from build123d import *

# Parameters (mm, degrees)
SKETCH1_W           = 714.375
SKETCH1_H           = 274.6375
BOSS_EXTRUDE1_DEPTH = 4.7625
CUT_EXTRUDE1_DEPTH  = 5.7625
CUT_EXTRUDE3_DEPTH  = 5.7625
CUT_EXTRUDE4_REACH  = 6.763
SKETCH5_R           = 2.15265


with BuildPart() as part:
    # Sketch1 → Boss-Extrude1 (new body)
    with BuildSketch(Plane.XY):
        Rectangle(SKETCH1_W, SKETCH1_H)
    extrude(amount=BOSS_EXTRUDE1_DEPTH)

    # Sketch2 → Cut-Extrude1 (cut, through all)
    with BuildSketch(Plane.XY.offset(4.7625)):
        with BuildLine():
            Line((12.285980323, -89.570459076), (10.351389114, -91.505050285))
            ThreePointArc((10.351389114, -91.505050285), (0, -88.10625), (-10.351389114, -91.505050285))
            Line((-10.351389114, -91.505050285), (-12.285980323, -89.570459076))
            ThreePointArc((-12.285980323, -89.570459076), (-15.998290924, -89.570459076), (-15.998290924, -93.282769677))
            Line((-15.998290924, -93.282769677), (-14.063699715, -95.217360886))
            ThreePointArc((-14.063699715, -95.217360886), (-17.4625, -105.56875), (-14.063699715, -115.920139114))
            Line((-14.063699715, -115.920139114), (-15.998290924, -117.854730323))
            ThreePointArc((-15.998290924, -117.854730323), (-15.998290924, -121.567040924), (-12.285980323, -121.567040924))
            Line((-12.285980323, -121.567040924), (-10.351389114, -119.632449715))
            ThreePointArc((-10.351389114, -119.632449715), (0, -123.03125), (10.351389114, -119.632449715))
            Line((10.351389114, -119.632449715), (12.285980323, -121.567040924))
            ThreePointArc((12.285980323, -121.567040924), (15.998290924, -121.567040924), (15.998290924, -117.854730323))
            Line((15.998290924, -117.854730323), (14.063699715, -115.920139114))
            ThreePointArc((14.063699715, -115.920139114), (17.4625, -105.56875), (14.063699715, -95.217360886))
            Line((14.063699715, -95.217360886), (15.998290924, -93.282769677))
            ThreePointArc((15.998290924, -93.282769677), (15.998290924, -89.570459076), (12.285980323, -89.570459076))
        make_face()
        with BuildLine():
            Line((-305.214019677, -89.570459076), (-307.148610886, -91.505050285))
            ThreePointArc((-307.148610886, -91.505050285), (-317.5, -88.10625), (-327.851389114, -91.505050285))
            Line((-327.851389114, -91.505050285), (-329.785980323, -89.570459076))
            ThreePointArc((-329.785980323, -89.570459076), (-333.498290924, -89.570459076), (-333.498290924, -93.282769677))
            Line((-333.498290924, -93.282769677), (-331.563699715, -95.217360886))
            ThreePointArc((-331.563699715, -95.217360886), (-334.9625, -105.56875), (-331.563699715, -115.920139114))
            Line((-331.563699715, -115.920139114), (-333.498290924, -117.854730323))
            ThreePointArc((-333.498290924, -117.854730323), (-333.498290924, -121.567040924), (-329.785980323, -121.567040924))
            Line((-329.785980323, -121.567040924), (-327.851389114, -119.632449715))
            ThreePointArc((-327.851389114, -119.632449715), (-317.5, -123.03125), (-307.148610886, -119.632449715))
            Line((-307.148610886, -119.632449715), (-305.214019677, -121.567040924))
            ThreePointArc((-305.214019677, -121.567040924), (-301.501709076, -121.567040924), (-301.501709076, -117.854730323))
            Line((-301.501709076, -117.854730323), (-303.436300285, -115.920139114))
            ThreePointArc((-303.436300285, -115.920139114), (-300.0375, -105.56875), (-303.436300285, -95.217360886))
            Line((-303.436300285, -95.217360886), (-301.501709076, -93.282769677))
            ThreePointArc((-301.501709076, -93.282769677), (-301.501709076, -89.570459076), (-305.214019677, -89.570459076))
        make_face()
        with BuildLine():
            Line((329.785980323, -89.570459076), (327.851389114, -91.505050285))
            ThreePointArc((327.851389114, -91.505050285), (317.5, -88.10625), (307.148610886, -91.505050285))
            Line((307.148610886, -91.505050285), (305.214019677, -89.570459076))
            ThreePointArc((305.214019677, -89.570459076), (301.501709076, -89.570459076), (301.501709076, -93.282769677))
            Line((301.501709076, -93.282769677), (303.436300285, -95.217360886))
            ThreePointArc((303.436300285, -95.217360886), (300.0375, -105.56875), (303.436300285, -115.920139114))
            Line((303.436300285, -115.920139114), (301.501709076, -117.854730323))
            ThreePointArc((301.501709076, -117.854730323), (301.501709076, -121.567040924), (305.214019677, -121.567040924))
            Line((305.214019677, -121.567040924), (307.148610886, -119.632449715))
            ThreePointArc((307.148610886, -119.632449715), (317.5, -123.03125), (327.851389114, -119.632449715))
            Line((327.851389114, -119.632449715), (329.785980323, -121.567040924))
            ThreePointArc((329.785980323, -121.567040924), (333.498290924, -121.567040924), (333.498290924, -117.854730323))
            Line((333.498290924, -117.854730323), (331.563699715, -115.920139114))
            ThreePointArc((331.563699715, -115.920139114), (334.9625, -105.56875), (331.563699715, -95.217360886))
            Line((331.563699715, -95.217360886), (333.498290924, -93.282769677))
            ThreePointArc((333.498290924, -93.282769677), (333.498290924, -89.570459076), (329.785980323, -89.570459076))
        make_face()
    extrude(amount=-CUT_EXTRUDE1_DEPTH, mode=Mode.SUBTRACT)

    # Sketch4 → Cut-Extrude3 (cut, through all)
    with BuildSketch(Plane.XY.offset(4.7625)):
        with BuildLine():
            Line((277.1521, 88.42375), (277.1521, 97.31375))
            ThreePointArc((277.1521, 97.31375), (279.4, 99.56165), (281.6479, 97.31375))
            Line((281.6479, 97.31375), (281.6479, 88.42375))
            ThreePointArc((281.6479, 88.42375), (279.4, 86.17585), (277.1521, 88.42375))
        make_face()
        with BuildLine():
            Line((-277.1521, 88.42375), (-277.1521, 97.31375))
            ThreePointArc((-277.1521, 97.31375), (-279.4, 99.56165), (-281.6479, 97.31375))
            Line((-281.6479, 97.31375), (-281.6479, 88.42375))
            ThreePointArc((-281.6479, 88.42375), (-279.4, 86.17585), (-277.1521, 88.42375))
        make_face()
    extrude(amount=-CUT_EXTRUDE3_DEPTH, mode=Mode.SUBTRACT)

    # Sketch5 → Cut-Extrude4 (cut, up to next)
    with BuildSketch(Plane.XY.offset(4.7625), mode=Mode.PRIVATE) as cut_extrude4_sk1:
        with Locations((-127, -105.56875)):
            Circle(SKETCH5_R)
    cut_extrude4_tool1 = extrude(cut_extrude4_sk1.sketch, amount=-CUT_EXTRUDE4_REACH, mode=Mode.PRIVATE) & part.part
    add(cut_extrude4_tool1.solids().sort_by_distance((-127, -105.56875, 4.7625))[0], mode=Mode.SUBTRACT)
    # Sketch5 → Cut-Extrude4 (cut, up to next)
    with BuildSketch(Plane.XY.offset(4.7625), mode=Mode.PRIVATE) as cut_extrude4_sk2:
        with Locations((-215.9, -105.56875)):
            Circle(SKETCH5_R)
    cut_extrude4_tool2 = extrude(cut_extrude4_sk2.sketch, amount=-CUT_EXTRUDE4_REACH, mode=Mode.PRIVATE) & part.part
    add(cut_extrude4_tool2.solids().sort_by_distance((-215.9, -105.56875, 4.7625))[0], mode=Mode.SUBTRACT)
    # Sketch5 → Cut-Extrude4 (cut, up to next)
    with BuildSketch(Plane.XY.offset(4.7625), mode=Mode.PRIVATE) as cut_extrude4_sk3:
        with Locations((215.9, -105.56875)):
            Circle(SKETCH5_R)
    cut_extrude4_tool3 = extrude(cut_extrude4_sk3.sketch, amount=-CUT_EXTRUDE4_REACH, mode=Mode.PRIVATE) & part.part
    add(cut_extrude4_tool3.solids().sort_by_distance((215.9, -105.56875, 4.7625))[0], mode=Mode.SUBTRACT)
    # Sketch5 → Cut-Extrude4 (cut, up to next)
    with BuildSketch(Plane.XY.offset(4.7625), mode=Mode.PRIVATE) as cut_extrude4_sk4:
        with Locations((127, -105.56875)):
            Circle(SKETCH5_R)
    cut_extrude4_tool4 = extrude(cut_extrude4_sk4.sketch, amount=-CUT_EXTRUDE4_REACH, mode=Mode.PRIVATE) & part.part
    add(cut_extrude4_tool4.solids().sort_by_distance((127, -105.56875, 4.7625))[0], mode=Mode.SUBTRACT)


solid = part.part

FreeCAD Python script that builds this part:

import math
import FreeCAD as App
import Part
import Sketcher
from FreeCAD import Vector
Q = App.Units.Quantity

doc = App.newDocument("Part")
body = doc.addObject("PartDesign::Body", "Body")

sketch1 = body.newObject("Sketcher::SketchObject", "Sketch")
sketch1.AttachmentSupport = (doc.getObject("XY_Plane"), [""])
sketch1.MapMode = "FlatFace"
sketch1.addGeometry([
    Part.LineSegment(Vector(-357, 137, 0), Vector(-357, -137, 0)),
    Part.LineSegment(Vector(-357, -137, 0), Vector(357, -137, 0)),
    Part.LineSegment(Vector(357, -137, 0), Vector(357, 137, 0)),
    Part.LineSegment(Vector(357, 137, 0), Vector(-357, 137, 0)),
], False)
sketch1.addConstraint([
    Sketcher.Constraint("Coincident", 0, 2, 1, 1),
    Sketcher.Constraint("Coincident", 1, 2, 2, 1),
    Sketcher.Constraint("Coincident", 2, 2, 3, 1),
    Sketcher.Constraint("Coincident", 3, 2, 0, 1),
    Sketcher.Constraint("Vertical", 0),
    Sketcher.Constraint("Horizontal", 1),
    Sketcher.Constraint("Vertical", 2),
    Sketcher.Constraint("Horizontal", 3),
    Sketcher.Constraint("Symmetric", 0, 2, 2, 2, -1, 1),
    Sketcher.Constraint("DistanceX", 1, 1, 1, 2, Q("28.125 in")),
    Sketcher.Constraint("DistanceY", 0, 2, 0, 1, Q("10.8125 in")),
])
pad1 = body.newObject("PartDesign::Pad", "Pad")
pad1.Profile = sketch1
pad1.Length = Q("0.1875 in")

sketch2 = body.newObject("Sketcher::SketchObject", "Sketch001")
sketch2.AttachmentSupport = (doc.getObject("XY_Plane"), [""])
sketch2.MapMode = "FlatFace"
sketch2.AttachmentOffset = App.Placement(Vector(0, 0, 0.1875 * 25.4), App.Rotation())
sketch2.addGeometry([
    Part.LineSegment(Vector(12.3, -89.6, 0), Vector(10.4, -91.5, 0)),
    Part.ArcOfCircle(Part.Circle(Vector(0, -105.6, 0), Vector(0, 0, 1), 17.5), math.radians(54), math.radians(126)),
    Part.LineSegment(Vector(-10.4, -91.5, 0), Vector(-12.3, -89.6, 0)),
    Part.ArcOfCircle(Part.Circle(Vector(-14.1, -91.4, 0), Vector(0, 0, 1), 2.6), math.radians(45), math.radians(225)),
    Part.LineSegment(Vector(-16, -93.3, 0), Vector(-14.1, -95.2, 0)),
    Part.ArcOfCircle(Part.Circle(Vector(0, -105.6, 0), Vector(0, 0, 1), 17.5), math.radians(144), math.radians(216)),
    Part.LineSegment(Vector(-14.1, -115.9, 0), Vector(-16, -117.9, 0)),
    Part.ArcOfCircle(Part.Circle(Vector(-14.1, -119.7, 0), Vector(0, 0, 1), 2.6), math.radians(135), math.radians(315)),
    Part.LineSegment(Vector(-12.3, -121.6, 0), Vector(-10.4, -119.6, 0)),
    Part.ArcOfCircle(Part.Circle(Vector(0, -105.6, 0), Vector(0, 0, 1), 17.5), math.radians(-126), math.radians(-54)),
    Part.LineSegment(Vector(10.4, -119.6, 0), Vector(12.3, -121.6, 0)),
    Part.ArcOfCircle(Part.Circle(Vector(14.1, -119.7, 0), Vector(0, 0, 1), 2.6), math.radians(-135), math.radians(45)),
    Part.LineSegment(Vector(16, -117.9, 0), Vector(14.1, -115.9, 0)),
    Part.ArcOfCircle(Part.Circle(Vector(0, -105.6, 0), Vector(0, 0, 1), 17.5), math.radians(-36), math.radians(36)),
    Part.LineSegment(Vector(14.1, -95.2, 0), Vector(16, -93.3, 0)),
    Part.ArcOfCircle(Part.Circle(Vector(14.1, -91.4, 0), Vector(0, 0, 1), 2.6), math.radians(-45), math.radians(135)),
    Part.LineSegment(Vector(-305.2, -89.6, 0), Vector(-307.1, -91.5, 0)),
    Part.ArcOfCircle(Part.Circle(Vector(-317.5, -105.6, 0), Vector(0, 0, 1), 17.5), math.radians(54), math.radians(126)),
    Part.LineSegment(Vector(-327.9, -91.5, 0), Vector(-329.8, -89.6, 0)),
    Part.ArcOfCircle(Part.Circle(Vector(-331.6, -91.4, 0), Vector(0, 0, 1), 2.6), math.radians(45), math.radians(225)),
    Part.LineSegment(Vector(-333.5, -93.3, 0), Vector(-331.6, -95.2, 0)),
    Part.ArcOfCircle(Part.Circle(Vector(-317.5, -105.6, 0), Vector(0, 0, 1), 17.5), math.radians(144), math.radians(216)),
    Part.LineSegment(Vector(-331.6, -115.9, 0), Vector(-333.5, -117.9, 0)),
    Part.ArcOfCircle(Part.Circle(Vector(-331.6, -119.7, 0), Vector(0, 0, 1), 2.6), math.radians(135), math.radians(315)),
    Part.LineSegment(Vector(-329.8, -121.6, 0), Vector(-327.9, -119.6, 0)),
    Part.ArcOfCircle(Part.Circle(Vector(-317.5, -105.6, 0), Vector(0, 0, 1), 17.5), math.radians(-126), math.radians(-54)),
    Part.LineSegment(Vector(-307.1, -119.6, 0), Vector(-305.2, -121.6, 0)),
    Part.ArcOfCircle(Part.Circle(Vector(-303.4, -119.7, 0), Vector(0, 0, 1), 2.6), math.radians(-135), math.radians(45)),
    Part.LineSegment(Vector(-301.5, -117.9, 0), Vector(-303.4, -115.9, 0)),
    Part.ArcOfCircle(Part.Circle(Vector(-317.5, -105.6, 0), Vector(0, 0, 1), 17.5), math.radians(-36), math.radians(36)),
    Part.LineSegment(Vector(-303.4, -95.2, 0), Vector(-301.5, -93.3, 0)),
    Part.ArcOfCircle(Part.Circle(Vector(-303.4, -91.4, 0), Vector(0, 0, 1), 2.6), math.radians(-45), math.radians(135)),
    Part.LineSegment(Vector(329.8, -89.6, 0), Vector(327.9, -91.5, 0)),
    Part.ArcOfCircle(Part.Circle(Vector(317.5, -105.6, 0), Vector(0, 0, 1), 17.5), math.radians(54), math.radians(126)),
    Part.LineSegment(Vector(307.1, -91.5, 0), Vector(305.2, -89.6, 0)),
    Part.ArcOfCircle(Part.Circle(Vector(303.4, -91.4, 0), Vector(0, 0, 1), 2.6), math.radians(45), math.radians(225)),
    Part.LineSegment(Vector(301.5, -93.3, 0), Vector(303.4, -95.2, 0)),
    Part.ArcOfCircle(Part.Circle(Vector(317.5, -105.6, 0), Vector(0, 0, 1), 17.5), math.radians(144), math.radians(216)),
    Part.LineSegment(Vector(303.4, -115.9, 0), Vector(301.5, -117.9, 0)),
    Part.ArcOfCircle(Part.Circle(Vector(303.4, -119.7, 0), Vector(0, 0, 1), 2.6), math.radians(135), math.radians(315)),
    Part.LineSegment(Vector(305.2, -121.6, 0), Vector(307.1, -119.6, 0)),
    Part.ArcOfCircle(Part.Circle(Vector(317.5, -105.6, 0), Vector(0, 0, 1), 17.5), math.radians(-126), math.radians(-54)),
    Part.LineSegment(Vector(327.9, -119.6, 0), Vector(329.8, -121.6, 0)),
    Part.ArcOfCircle(Part.Circle(Vector(331.6, -119.7, 0), Vector(0, 0, 1), 2.6), math.radians(-135), math.radians(45)),
    Part.LineSegment(Vector(333.5, -117.9, 0), Vector(331.6, -115.9, 0)),
    Part.ArcOfCircle(Part.Circle(Vector(317.5, -105.6, 0), Vector(0, 0, 1), 17.5), math.radians(-36), math.radians(36)),
    Part.LineSegment(Vector(331.6, -95.2, 0), Vector(333.5, -93.3, 0)),
    Part.ArcOfCircle(Part.Circle(Vector(331.6, -91.4, 0), Vector(0, 0, 1), 2.6), math.radians(-45), math.radians(135)),
], False)
sketch2.addConstraint([
    Sketcher.Constraint("Coincident", 0, 2, 1, 1),
    Sketcher.Constraint("Coincident", 1, 2, 2, 1),
    Sketcher.Constraint("Tangent", 2, 2, 3, 1),
    Sketcher.Constraint("Tangent", 3, 2, 4, 1),
    Sketcher.Constraint("Coincident", 4, 2, 5, 1),
    Sketcher.Constraint("Coincident", 5, 2, 6, 1),
    Sketcher.Constraint("Tangent", 6, 2, 7, 1),
    Sketcher.Constraint("Tangent", 7, 2, 8, 1),
    Sketcher.Constraint("Coincident", 8, 2, 9, 1),
    Sketcher.Constraint("Coincident", 9, 2, 10, 1),
    Sketcher.Constraint("Tangent", 10, 2, 11, 1),
    Sketcher.Constraint("Tangent", 11, 2, 12, 1),
    Sketcher.Constraint("Coincident", 12, 2, 13, 1),
    Sketcher.Constraint("Coincident", 13, 2, 14, 1),
    Sketcher.Constraint("Tangent", 14, 2, 15, 1),
    Sketcher.Constraint("Tangent", 15, 2, 0, 1),
    Sketcher.Constraint("Coincident", 16, 2, 17, 1),
    Sketcher.Constraint("Coincident", 17, 2, 18, 1),
    Sketcher.Constraint("Tangent", 18, 2, 19, 1),
    Sketcher.Constraint("Tangent", 19, 2, 20, 1),
    Sketcher.Constraint("Coincident", 20, 2, 21, 1),
    Sketcher.Constraint("Coincident", 21, 2, 22, 1),
    Sketcher.Constraint("Tangent", 22, 2, 23, 1),
    Sketcher.Constraint("Tangent", 23, 2, 24, 1),
    Sketcher.Constraint("Coincident", 24, 2, 25, 1),
    Sketcher.Constraint("Coincident", 25, 2, 26, 1),
    Sketcher.Constraint("Tangent", 26, 2, 27, 1),
    Sketcher.Constraint("Tangent", 27, 2, 28, 1),
    Sketcher.Constraint("Coincident", 28, 2, 29, 1),
    Sketcher.Constraint("Coincident", 29, 2, 30, 1),
    Sketcher.Constraint("Tangent", 30, 2, 31, 1),
    Sketcher.Constraint("Tangent", 31, 2, 16, 1),
    Sketcher.Constraint("Coincident", 32, 2, 33, 1),
    Sketcher.Constraint("Coincident", 33, 2, 34, 1),
    Sketcher.Constraint("Tangent", 34, 2, 35, 1),
    Sketcher.Constraint("Tangent", 35, 2, 36, 1),
    Sketcher.Constraint("Coincident", 36, 2, 37, 1),
    Sketcher.Constraint("Coincident", 37, 2, 38, 1),
    Sketcher.Constraint("Tangent", 38, 2, 39, 1),
    Sketcher.Constraint("Tangent", 39, 2, 40, 1),
    Sketcher.Constraint("Coincident", 40, 2, 41, 1),
    Sketcher.Constraint("Coincident", 41, 2, 42, 1),
    Sketcher.Constraint("Tangent", 42, 2, 43, 1),
    Sketcher.Constraint("Tangent", 43, 2, 44, 1),
    Sketcher.Constraint("Coincident", 44, 2, 45, 1),
    Sketcher.Constraint("Coincident", 45, 2, 46, 1),
    Sketcher.Constraint("Tangent", 46, 2, 47, 1),
    Sketcher.Constraint("Tangent", 47, 2, 32, 1),
    Sketcher.Constraint("Coincident", 5, 3, 1, 3),
    Sketcher.Constraint("Coincident", 9, 3, 1, 3),
    Sketcher.Constraint("Coincident", 13, 3, 1, 3),
    Sketcher.Constraint("Coincident", 21, 3, 17, 3),
    Sketcher.Constraint("Coincident", 25, 3, 17, 3),
    Sketcher.Constraint("Coincident", 29, 3, 17, 3),
    Sketcher.Constraint("Coincident", 37, 3, 33, 3),
    Sketcher.Constraint("Coincident", 41, 3, 33, 3),
    Sketcher.Constraint("Coincident", 45, 3, 33, 3),
    Sketcher.Constraint("Equal", 1, 5),
    Sketcher.Constraint("Equal", 3, 7),
    Sketcher.Constraint("Equal", 5, 9),
    Sketcher.Constraint("Equal", 7, 11),
    Sketcher.Constraint("Equal", 9, 13),
    Sketcher.Constraint("Equal", 11, 15),
    Sketcher.Constraint("Equal", 13, 17),
    Sketcher.Constraint("Equal", 15, 19),
    Sketcher.Constraint("Equal", 17, 21),
    Sketcher.Constraint("Equal", 19, 23),
    Sketcher.Constraint("Equal", 21, 25),
    Sketcher.Constraint("Equal", 23, 27),
    Sketcher.Constraint("Equal", 25, 29),
    Sketcher.Constraint("Equal", 27, 31),
    Sketcher.Constraint("Equal", 29, 33),
    Sketcher.Constraint("Equal", 31, 35),
    Sketcher.Constraint("Equal", 33, 37),
    Sketcher.Constraint("Equal", 35, 39),
    Sketcher.Constraint("Equal", 37, 41),
    Sketcher.Constraint("Equal", 39, 43),
    Sketcher.Constraint("Equal", 41, 45),
    Sketcher.Constraint("Equal", 43, 47),
    Sketcher.Constraint("Symmetric", 7, 3, 11, 3, -2),
    Sketcher.Constraint("Symmetric", 3, 3, 15, 3, -2),
    Sketcher.Constraint("Symmetric", 17, 3, 33, 3, -2),
    Sketcher.Constraint("Symmetric", 31, 3, 35, 3, -2),
    Sketcher.Constraint("Symmetric", 27, 3, 39, 3, -2),
    Sketcher.Constraint("Symmetric", 23, 3, 43, 3, -2),
    Sketcher.Constraint("Symmetric", 19, 3, 47, 3, -2),
    Sketcher.Constraint("Symmetric", 0, 2, 1, 2, -2),
    Sketcher.Constraint("Perpendicular", 0, 2),
    Sketcher.Constraint("Parallel", 2, 4),
    Sketcher.Constraint("Perpendicular", 4, 6),
    Sketcher.Constraint("Parallel", 6, 8),
    Sketcher.Constraint("Perpendicular", 8, 10),
    Sketcher.Constraint("Parallel", 10, 12),
    Sketcher.Constraint("Perpendicular", 12, 14),
    Sketcher.Constraint("Parallel", 14, 16),
    Sketcher.Constraint("Perpendicular", 16, 18),
    Sketcher.Constraint("Parallel", 18, 20),
    Sketcher.Constraint("Perpendicular", 20, 22),
    Sketcher.Constraint("Parallel", 22, 24),
    Sketcher.Constraint("Perpendicular", 24, 26),
    Sketcher.Constraint("Parallel", 26, 28),
    Sketcher.Constraint("Perpendicular", 28, 30),
    Sketcher.Constraint("Parallel", 30, 32),
    Sketcher.Constraint("Perpendicular", 32, 34),
    Sketcher.Constraint("Parallel", 34, 36),
    Sketcher.Constraint("Perpendicular", 36, 38),
    Sketcher.Constraint("Parallel", 38, 40),
    Sketcher.Constraint("Perpendicular", 40, 42),
    Sketcher.Constraint("Parallel", 42, 44),
    Sketcher.Constraint("Perpendicular", 44, 46),
    Sketcher.Constraint("Horizontal", 13, 3, 17, 3),
    Sketcher.Constraint("Horizontal", 15, 3, 19, 3),
    Sketcher.Constraint("Horizontal", 11, 3, 23, 3),
    Sketcher.Constraint("Horizontal", 23, 3, 27, 3),
    Sketcher.Constraint("Horizontal", 19, 3, 31, 3),
    Sketcher.Constraint("Horizontal", 1, 2, 16, 2),
    Sketcher.Constraint("Horizontal", 16, 2, 17, 2),
    Sketcher.Constraint("Horizontal", 12, 2, 21, 2),
    Sketcher.Constraint("Horizontal", 24, 2, 25, 2),
    Sketcher.Constraint("Vertical", 3, 3, 7, 3),
    Sketcher.Constraint("Vertical", 4, 2, 5, 2),
    Sketcher.Constraint("Equal", 2, 4),
    Sketcher.Constraint("Radius", 1, Q("0.6875 in")),
    Sketcher.Constraint("DistanceX", 17, 3, -1, 1, Q("12.5 in")),
    Sketcher.Constraint("Radius", 3, 2.625),
    Sketcher.Constraint("DistanceY", 1, 3, -1, 1, Q("4.15625 in")),
    Sketcher.Constraint("DistanceX", 2, 2, -1, 1, Q("0.4837 in")),
])
pocket1 = body.newObject("PartDesign::Pocket", "Pocket")
pocket1.Profile = sketch2
pocket1.Type = "ThroughAll"

sketch3 = body.newObject("Sketcher::SketchObject", "Sketch002")
sketch3.AttachmentSupport = (doc.getObject("XY_Plane"), [""])
sketch3.MapMode = "FlatFace"
sketch3.AttachmentOffset = App.Placement(Vector(0, 0, 0.1875 * 25.4), App.Rotation())
sketch3.addGeometry([
    Part.LineSegment(Vector(277.2, 97.3, 0), Vector(277.2, 88.4, 0)),
    Part.ArcOfCircle(Part.Circle(Vector(279.4, 88.4, 0), Vector(0, 0, 1), 2.2), math.radians(180), math.radians(360)),
    Part.LineSegment(Vector(281.6, 88.4, 0), Vector(281.6, 97.3, 0)),
    Part.ArcOfCircle(Part.Circle(Vector(279.4, 97.3, 0), Vector(0, 0, 1), 2.2), math.radians(0), math.radians(180)),
    Part.LineSegment(Vector(-277.2, 88.4, 0), Vector(-277.2, 97.3, 0)),
    Part.ArcOfCircle(Part.Circle(Vector(-279.4, 97.3, 0), Vector(0, 0, 1), 2.2), math.radians(0), math.radians(180)),
    Part.LineSegment(Vector(-281.6, 97.3, 0), Vector(-281.6, 88.4, 0)),
    Part.ArcOfCircle(Part.Circle(Vector(-279.4, 88.4, 0), Vector(0, 0, 1), 2.2), math.radians(180), math.radians(360)),
], False)
sketch3.addConstraint([
    Sketcher.Constraint("Tangent", 0, 2, 1, 1),
    Sketcher.Constraint("Tangent", 1, 2, 2, 1),
    Sketcher.Constraint("Tangent", 2, 2, 3, 1),
    Sketcher.Constraint("Tangent", 3, 2, 0, 1),
    Sketcher.Constraint("Tangent", 4, 2, 5, 1),
    Sketcher.Constraint("Tangent", 5, 2, 6, 1),
    Sketcher.Constraint("Tangent", 6, 2, 7, 1),
    Sketcher.Constraint("Tangent", 7, 2, 4, 1),
    Sketcher.Constraint("Vertical", 0),
    Sketcher.Constraint("Vertical", 2),
    Sketcher.Constraint("Vertical", 4),
    Sketcher.Constraint("Vertical", 6),
    Sketcher.Constraint("Equal", 3, 5),
    Sketcher.Constraint("Symmetric", 3, 3, 5, 3, -2),
    Sketcher.Constraint("Horizontal", 1, 3, 7, 3),
    Sketcher.Constraint("DistanceX", -1, 1, 1, 3, Q("11 in")),
    Sketcher.Constraint("DistanceY", 0, 2, 0, 1, Q("0.35 in")),
    Sketcher.Constraint("Radius", 1, Q("0.0885 in")),
    Sketcher.Constraint("DistanceY", -1, 1, 1, 3, 88.42375),
])
pocket2 = body.newObject("PartDesign::Pocket", "Pocket001")
pocket2.Profile = sketch3
pocket2.Type = "ThroughAll"

sketch4 = body.newObject("Sketcher::SketchObject", "Sketch003")
sketch4.AttachmentSupport = (doc.getObject("XY_Plane"), [""])
sketch4.MapMode = "FlatFace"
sketch4.AttachmentOffset = App.Placement(Vector(0, 0, 0.1875 * 25.4), App.Rotation())
sketch4.addGeometry(Part.Circle(Vector(-127, -105.6, 0), Vector(0, 0, 1), 2.2), False)
sketch4.addConstraint([
    Sketcher.Constraint("DistanceX", 0, 3, -1, 1, Q("5 in")),
    Sketcher.Constraint("Diameter", 0, Q("0.1695 in")),
    Sketcher.Constraint("DistanceY", 0, 3, -1, 1, Q("4.15625 in")),
])
pocket3 = body.newObject("PartDesign::Pocket", "Pocket002")
pocket3.Profile = sketch4
pocket3.Type = "UpToFirst"

sketch5 = body.newObject("Sketcher::SketchObject", "Sketch004")
sketch5.AttachmentSupport = (doc.getObject("XY_Plane"), [""])
sketch5.MapMode = "FlatFace"
sketch5.AttachmentOffset = App.Placement(Vector(0, 0, 0.1875 * 25.4), App.Rotation())
sketch5.addGeometry(Part.Circle(Vector(-215.9, -105.6, 0), Vector(0, 0, 1), 2.2), False)
sketch5.addConstraint([
    Sketcher.Constraint("Diameter", 0, Q("0.1695 in")),
    Sketcher.Constraint("DistanceX", 0, 3, -1, 1, Q("8.5 in")),
    Sketcher.Constraint("DistanceY", 0, 3, -1, 1, Q("4.15625 in")),
])
pocket4 = body.newObject("PartDesign::Pocket", "Pocket003")
pocket4.Profile = sketch5
pocket4.Type = "UpToFirst"

sketch6 = body.newObject("Sketcher::SketchObject", "Sketch005")
sketch6.AttachmentSupport = (doc.getObject("XY_Plane"), [""])
sketch6.MapMode = "FlatFace"
sketch6.AttachmentOffset = App.Placement(Vector(0, 0, 0.1875 * 25.4), App.Rotation())
sketch6.addGeometry(Part.Circle(Vector(215.9, -105.6, 0), Vector(0, 0, 1), 2.2), False)
sketch6.addConstraint([
    Sketcher.Constraint("Diameter", 0, Q("0.1695 in")),
    Sketcher.Constraint("DistanceX", -1, 1, 0, 3, Q("8.5 in")),
    Sketcher.Constraint("DistanceY", 0, 3, -1, 1, Q("4.15625 in")),
])
pocket5 = body.newObject("PartDesign::Pocket", "Pocket004")
pocket5.Profile = sketch6
pocket5.Type = "UpToFirst"

sketch7 = body.newObject("Sketcher::SketchObject", "Sketch006")
sketch7.AttachmentSupport = (doc.getObject("XY_Plane"), [""])
sketch7.MapMode = "FlatFace"
sketch7.AttachmentOffset = App.Placement(Vector(0, 0, 0.1875 * 25.4), App.Rotation())
sketch7.addGeometry(Part.Circle(Vector(127, -105.6, 0), Vector(0, 0, 1), 2.2), False)
sketch7.addConstraint([
    Sketcher.Constraint("DistanceX", -1, 1, 0, 3, Q("5 in")),
    Sketcher.Constraint("Diameter", 0, Q("0.1695 in")),
    Sketcher.Constraint("DistanceY", 0, 3, -1, 1, Q("4.15625 in")),
])
pocket6 = body.newObject("PartDesign::Pocket", "Pocket005")
pocket6.Profile = sketch7
pocket6.Type = "UpToFirst"

doc.recompute()
